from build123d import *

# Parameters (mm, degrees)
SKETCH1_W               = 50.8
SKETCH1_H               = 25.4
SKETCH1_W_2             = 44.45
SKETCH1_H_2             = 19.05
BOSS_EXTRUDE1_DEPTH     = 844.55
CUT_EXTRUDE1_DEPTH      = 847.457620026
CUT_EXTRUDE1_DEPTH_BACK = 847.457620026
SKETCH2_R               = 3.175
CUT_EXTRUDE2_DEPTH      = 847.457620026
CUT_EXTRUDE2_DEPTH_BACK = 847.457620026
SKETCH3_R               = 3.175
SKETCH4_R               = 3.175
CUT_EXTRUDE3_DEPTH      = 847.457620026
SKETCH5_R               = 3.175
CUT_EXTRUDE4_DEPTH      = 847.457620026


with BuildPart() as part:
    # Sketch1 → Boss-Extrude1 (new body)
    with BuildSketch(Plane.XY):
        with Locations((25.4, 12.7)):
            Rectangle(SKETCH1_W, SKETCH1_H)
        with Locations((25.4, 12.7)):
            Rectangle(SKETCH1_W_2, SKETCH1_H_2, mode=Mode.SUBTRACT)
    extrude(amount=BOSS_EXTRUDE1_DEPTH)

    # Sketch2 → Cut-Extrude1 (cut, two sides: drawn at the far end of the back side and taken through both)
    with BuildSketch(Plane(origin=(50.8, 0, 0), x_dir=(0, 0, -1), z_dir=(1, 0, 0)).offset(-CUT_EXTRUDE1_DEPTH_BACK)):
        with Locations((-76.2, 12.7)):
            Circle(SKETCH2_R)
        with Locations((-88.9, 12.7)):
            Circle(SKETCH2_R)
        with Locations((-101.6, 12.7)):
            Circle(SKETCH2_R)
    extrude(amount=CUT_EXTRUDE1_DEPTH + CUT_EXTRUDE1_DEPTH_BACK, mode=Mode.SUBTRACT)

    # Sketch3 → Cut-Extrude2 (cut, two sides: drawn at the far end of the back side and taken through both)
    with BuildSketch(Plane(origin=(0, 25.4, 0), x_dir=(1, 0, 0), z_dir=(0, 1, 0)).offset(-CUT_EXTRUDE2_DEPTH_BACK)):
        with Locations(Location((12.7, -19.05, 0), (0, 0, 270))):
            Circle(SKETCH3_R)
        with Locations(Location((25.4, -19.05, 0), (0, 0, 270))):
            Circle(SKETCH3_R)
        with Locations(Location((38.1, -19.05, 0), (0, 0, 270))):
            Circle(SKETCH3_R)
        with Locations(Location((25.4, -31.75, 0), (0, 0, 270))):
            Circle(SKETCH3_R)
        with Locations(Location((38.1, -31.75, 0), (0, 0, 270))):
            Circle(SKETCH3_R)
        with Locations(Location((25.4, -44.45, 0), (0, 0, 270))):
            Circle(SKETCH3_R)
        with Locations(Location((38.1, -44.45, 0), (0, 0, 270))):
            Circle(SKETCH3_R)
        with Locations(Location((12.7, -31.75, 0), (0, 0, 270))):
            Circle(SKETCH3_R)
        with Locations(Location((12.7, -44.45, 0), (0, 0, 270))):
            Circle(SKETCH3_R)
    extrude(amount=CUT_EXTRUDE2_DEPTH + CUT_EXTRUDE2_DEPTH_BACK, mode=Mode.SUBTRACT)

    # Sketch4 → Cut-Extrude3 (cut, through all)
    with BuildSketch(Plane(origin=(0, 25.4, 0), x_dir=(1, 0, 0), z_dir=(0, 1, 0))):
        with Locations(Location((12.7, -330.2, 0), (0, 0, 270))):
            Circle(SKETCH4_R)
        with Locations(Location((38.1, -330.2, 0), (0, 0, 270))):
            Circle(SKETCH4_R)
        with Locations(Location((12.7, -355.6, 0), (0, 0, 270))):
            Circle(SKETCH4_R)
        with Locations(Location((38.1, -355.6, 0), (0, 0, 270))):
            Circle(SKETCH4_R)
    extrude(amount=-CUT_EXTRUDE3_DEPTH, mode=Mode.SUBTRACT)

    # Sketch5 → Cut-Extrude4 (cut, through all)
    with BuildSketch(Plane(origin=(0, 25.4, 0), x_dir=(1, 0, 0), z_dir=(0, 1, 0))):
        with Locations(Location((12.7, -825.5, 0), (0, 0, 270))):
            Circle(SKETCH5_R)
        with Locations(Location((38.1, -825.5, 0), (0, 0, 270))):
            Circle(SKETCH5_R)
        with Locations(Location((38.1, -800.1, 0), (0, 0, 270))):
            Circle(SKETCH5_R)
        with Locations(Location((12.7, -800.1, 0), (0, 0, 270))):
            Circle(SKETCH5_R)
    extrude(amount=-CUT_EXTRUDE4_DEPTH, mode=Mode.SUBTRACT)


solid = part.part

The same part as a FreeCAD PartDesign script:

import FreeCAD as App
import Part
import Sketcher
from FreeCAD import Vector
Q = App.Units.Quantity

doc = App.newDocument("Part")
body = doc.addObject("PartDesign::Body", "Body")

sketch1 = body.newObject("Sketcher::SketchObject", "Sketch")
sketch1.AttachmentSupport = (doc.getObject("XY_Plane"), [""])
sketch1.MapMode = "FlatFace"
sketch1.addGeometry([
    Part.LineSegment(Vector(0, 25, 0), Vector(0, 0, 0)),
    Part.LineSegment(Vector(0, 0, 0), Vector(51, 0, 0)),
    Part.LineSegment(Vector(51, 0, 0), Vector(51, 25, 0)),
    Part.LineSegment(Vector(51, 25, 0), Vector(0, 25, 0)),
    Part.LineSegment(Vector(48, 3, 0), Vector(3, 3, 0)),
    Part.LineSegment(Vector(3, 3, 0), Vector(3, 22, 0)),
    Part.LineSegment(Vector(3, 22, 0), Vector(48, 22, 0)),
    Part.LineSegment(Vector(48, 22, 0), Vector(48, 3, 0)),
], False)
sketch1.addConstraint([
    Sketcher.Constraint("Coincident", 0, 2, 1, 1),
    Sketcher.Constraint("Coincident", 1, 2, 2, 1),
    Sketcher.Constraint("Coincident", 2, 2, 3, 1),
    Sketcher.Constraint("Coincident", 3, 2, 0, 1),
    Sketcher.Constraint("Coincident", 4, 2, 5, 1),
    Sketcher.Constraint("Coincident", 5, 2, 6, 1),
    Sketcher.Constraint("Coincident", 6, 2, 7, 1),
    Sketcher.Constraint("Coincident", 7, 2, 4, 1),
    Sketcher.Constraint("Vertical", 0),
    Sketcher.Constraint("Horizontal", 1),
    Sketcher.Constraint("Vertical", 2),
    Sketcher.Constraint("Horizontal", 3),
    Sketcher.Constraint("Horizontal", 4),
    Sketcher.Constraint("Vertical", 5),
    Sketcher.Constraint("Horizontal", 6),
    Sketcher.Constraint("Vertical", 7),
    Sketcher.Constraint("Coincident", 0, 2, -1, 1),
    Sketcher.Constraint("DistanceX", 1, 1, 1, 2, Q("2 in")),
    Sketcher.Constraint("DistanceY", 0, 2, 0, 1, Q("1 in")),
    Sketcher.Constraint("DistanceX", 4, 2, 4, 1, Q("1.75 in")),
    Sketcher.Constraint("DistanceY", 5, 1, 5, 2, Q("0.75 in")),
    Sketcher.Constraint("DistanceX", -1, 1, 4, 2, Q("0.125 in")),
    Sketcher.Constraint("DistanceY", -1, 1, 4, 2, Q("0.125 in")),
])
pad1 = body.newObject("PartDesign::Pad", "Pad")
pad1.Profile = sketch1
pad1.Length = Q("33.25 in")

sketch2 = body.newObject("Sketcher::SketchObject", "Sketch001")
sketch2.AttachmentSupport = (doc.getObject("YZ_Plane"), [""])
sketch2.MapMode = "FlatFace"
sketch2.AttachmentOffset = App.Placement(Vector(0, 0, 2 * 25.4), App.Rotation())
sketch2.addGeometry([
    Part.Circle(Vector(12.7, 76.2, 0), Vector(0, 0, 1), 3.2),
    Part.Circle(Vector(12.7, 88.9, 0), Vector(0, 0, 1), 3.2),
    Part.Circle(Vector(12.7, 101.6, 0), Vector(0, 0, 1), 3.2),
], False)
sketch2.addConstraint([
    Sketcher.Constraint("Equal", 0, 1),
    Sketcher.Constraint("Equal", 1, 2),
    Sketcher.Constraint("Vertical", 0, 3, 1, 3),
    Sketcher.Constraint("Vertical", 1, 3, 2, 3),
    Sketcher.Constraint("Diameter", 0, Q("0.25 in")),
    Sketcher.Constraint("DistanceY", -1, 1, 0, 3, Q("3 in")),
    Sketcher.Constraint("DistanceY", -1, 1, 2, 3, Q("4 in")),
    Sketcher.Constraint("DistanceX", -1, 1, 0, 3, Q("0.5 in")),
    Sketcher.Constraint("DistanceY", -1, 1, 1, 3, Q("3.5 in")),
])
pocket1 = body.newObject("PartDesign::Pocket", "Pocket")
pocket1.Profile = sketch2
pocket1.Type = "ThroughAll"
pocket1.Midplane = True

sketch3 = body.newObject("Sketcher::SketchObject", "Sketch002")
sketch3.AttachmentSupport = (doc.getObject("XZ_Plane"), [""])
sketch3.MapMode = "FlatFace"
sketch3.AttachmentOffset = App.Placement(Vector(0, 0, -1 * 25.4), App.Rotation())
sketch3.addGeometry([
    Part.Circle(Vector(12.7, 19.1, 0), Vector(0, 0, 1), 3.2),
    Part.Circle(Vector(25.4, 19.1, 0), Vector(0, 0, 1), 3.2),
    Part.Circle(Vector(38.1, 19.1, 0), Vector(0, 0, 1), 3.2),
    Part.Circle(Vector(25.4, 31.8, 0), Vector(0, 0, 1), 3.2),
    Part.Circle(Vector(38.1, 31.8, 0), Vector(0, 0, 1), 3.2),
    Part.Circle(Vector(25.4, 44.5, 0), Vector(0, 0, 1), 3.2),
    Part.Circle(Vector(38.1, 44.5, 0), Vector(0, 0, 1), 3.2),
    Part.Circle(Vector(12.7, 31.8, 0), Vector(0, 0, 1), 3.2),
    Part.Circle(Vector(12.7, 44.5, 0), Vector(0, 0, 1), 3.2),
], False)
sketch3.addConstraint([
    Sketcher.Constraint("Equal", 0, 1),
    Sketcher.Constraint("Equal", 1, 2),
    Sketcher.Constraint("Equal", 2, 3),
    Sketcher.Constraint("Equal", 3, 4),
    Sketcher.Constraint("Equal", 4, 5),
    Sketcher.Constraint("Equal", 5, 6),
    Sketcher.Constraint("Equal", 6, 7),
    Sketcher.Constraint("Equal", 7, 8),
    Sketcher.Constraint("Horizontal", 0, 3, 1, 3),
    Sketcher.Constraint("Horizontal", 1, 3, 2, 3),
    Sketcher.Constraint("Horizontal", 3, 3, 4, 3),
    Sketcher.Constraint("Horizontal", 5, 3, 6, 3),
    Sketcher.Constraint("Horizontal", 4, 3, 7, 3),
    Sketcher.Constraint("Horizontal", 6, 3, 8, 3),
    Sketcher.Constraint("Vertical", 1, 3, 3, 3),
    Sketcher.Constraint("Vertical", 2, 3, 4, 3),
    Sketcher.Constraint("Vertical", 3, 3, 5, 3),
    Sketcher.Constraint("Vertical", 4, 3, 6, 3),
    Sketcher.Constraint("Vertical", 0, 3, 7, 3),
    Sketcher.Constraint("Vertical", 7, 3, 8, 3),
    Sketcher.Constraint("Diameter", 0, Q("0.25 in")),
    Sketcher.Constraint("DistanceX", -1, 1, 1, 3, Q("1 in")),
    Sketcher.Constraint("DistanceX", 0, 3, 2, 3, Q("1 in")),
    Sketcher.Constraint("DistanceY", 1, 3, 5, 3, Q("1 in")),
    Sketcher.Constraint("DistanceX", -1, 1, 0, 3, Q("0.5 in")),
    Sketcher.Constraint("DistanceY", 1, 3, 3, 3, Q("0.5 in")),
    Sketcher.Constraint("DistanceY", -1, 1, 0, 3, Q("0.75 in")),
])
pocket2 = body.newObject("PartDesign::Pocket", "Pocket001")
pocket2.Profile = sketch3
pocket2.Type = "ThroughAll"
pocket2.Midplane = True

sketch4 = body.newObject("Sketcher::SketchObject", "Sketch003")
sketch4.AttachmentSupport = (doc.getObject("XZ_Plane"), [""])
sketch4.MapMode = "FlatFace"
sketch4.AttachmentOffset = App.Placement(Vector(0, 0, -1 * 25.4), App.Rotation())
sketch4.addGeometry([
    Part.Circle(Vector(12.7, 330.2, 0), Vector(0, 0, 1), 3.2),
    Part.Circle(Vector(38.1, 330.2, 0), Vector(0, 0, 1), 3.2),
    Part.Circle(Vector(12.7, 355.6, 0), Vector(0, 0, 1), 3.2),
    Part.Circle(Vector(38.1, 355.6, 0), Vector(0, 0, 1), 3.2),
], False)
sketch4.addConstraint([
    Sketcher.Constraint("Equal", 0, 1),
    Sketcher.Constraint("Equal", 1, 2),
    Sketcher.Constraint("Equal", 2, 3),
    Sketcher.Constraint("Horizontal", 0, 3, 1, 3),
    Sketcher.Constraint("Horizontal", 2, 3, 3, 3),
    Sketcher.Constraint("Vertical", 0, 3, 2, 3),
    Sketcher.Constraint("Vertical", 1, 3, 3, 3),
    Sketcher.Constraint("Diameter", 0, Q("0.25 in")),
    Sketcher.Constraint("DistanceY", -1, 1, 0, 3, Q("13 in")),
    Sketcher.Constraint("DistanceY", -1, 1, 2, 3, Q("14 in")),
    Sketcher.Constraint("DistanceX", 0, 3, 1, 3, Q("1 in")),
    Sketcher.Constraint("DistanceX", -1, 1, 0, 3, Q("0.5 in")),
])
pocket3 = body.newObject("PartDesign::Pocket", "Pocket002")
pocket3.Profile = sketch4
pocket3.Type = "ThroughAll"
pocket3.Reversed = True

sketch5 = body.newObject("Sketcher::SketchObject", "Sketch004")
sketch5.AttachmentSupport = (doc.getObject("XZ_Plane"), [""])
sketch5.MapMode = "FlatFace"
sketch5.AttachmentOffset = App.Placement(Vector(0, 0, -1 * 25.4), App.Rotation())
sketch5.addGeometry([
    Part.Circle(Vector(12.7, 825.5, 0), Vector(0, 0, 1), 3.2),
    Part.Circle(Vector(38.1, 825.5, 0), Vector(0, 0, 1), 3.2),
    Part.Circle(Vector(38.1, 800.1, 0), Vector(0, 0, 1), 3.2),
    Part.Circle(Vector(12.7, 800.1, 0), Vector(0, 0, 1), 3.2),
], False)
sketch5.addConstraint([
    Sketcher.Constraint("Equal", 0, 1),
    Sketcher.Constraint("Equal", 1, 2),
    Sketcher.Constraint("Equal", 2, 3),
    Sketcher.Constraint("Horizontal", 0, 3, 1, 3),
    Sketcher.Constraint("Horizontal", 2, 3, 3, 3),
    Sketcher.Constraint("Vertical", 1, 3, 2, 3),
    Sketcher.Constraint("Vertical", 0, 3, 3, 3),
    Sketcher.Constraint("Diameter", 0, Q("0.25 in")),
    Sketcher.Constraint("DistanceX", 0, 3, 1, 3, Q("1 in")),
    Sketcher.Constraint("DistanceY", 2, 3, 1, 3, Q("1 in")),
    Sketcher.Constraint("DistanceX", -1, 1, 0, 3, Q("0.5 in")),
    Sketcher.Constraint("DistanceY", -1, 1, 0, 3, Q("32.5 in")),
])
pocket4 = body.newObject("PartDesign::Pocket", "Pocket003")
pocket4.Profile = sketch5
pocket4.Type = "ThroughAll"
pocket4.Reversed = True

doc.recompute()
